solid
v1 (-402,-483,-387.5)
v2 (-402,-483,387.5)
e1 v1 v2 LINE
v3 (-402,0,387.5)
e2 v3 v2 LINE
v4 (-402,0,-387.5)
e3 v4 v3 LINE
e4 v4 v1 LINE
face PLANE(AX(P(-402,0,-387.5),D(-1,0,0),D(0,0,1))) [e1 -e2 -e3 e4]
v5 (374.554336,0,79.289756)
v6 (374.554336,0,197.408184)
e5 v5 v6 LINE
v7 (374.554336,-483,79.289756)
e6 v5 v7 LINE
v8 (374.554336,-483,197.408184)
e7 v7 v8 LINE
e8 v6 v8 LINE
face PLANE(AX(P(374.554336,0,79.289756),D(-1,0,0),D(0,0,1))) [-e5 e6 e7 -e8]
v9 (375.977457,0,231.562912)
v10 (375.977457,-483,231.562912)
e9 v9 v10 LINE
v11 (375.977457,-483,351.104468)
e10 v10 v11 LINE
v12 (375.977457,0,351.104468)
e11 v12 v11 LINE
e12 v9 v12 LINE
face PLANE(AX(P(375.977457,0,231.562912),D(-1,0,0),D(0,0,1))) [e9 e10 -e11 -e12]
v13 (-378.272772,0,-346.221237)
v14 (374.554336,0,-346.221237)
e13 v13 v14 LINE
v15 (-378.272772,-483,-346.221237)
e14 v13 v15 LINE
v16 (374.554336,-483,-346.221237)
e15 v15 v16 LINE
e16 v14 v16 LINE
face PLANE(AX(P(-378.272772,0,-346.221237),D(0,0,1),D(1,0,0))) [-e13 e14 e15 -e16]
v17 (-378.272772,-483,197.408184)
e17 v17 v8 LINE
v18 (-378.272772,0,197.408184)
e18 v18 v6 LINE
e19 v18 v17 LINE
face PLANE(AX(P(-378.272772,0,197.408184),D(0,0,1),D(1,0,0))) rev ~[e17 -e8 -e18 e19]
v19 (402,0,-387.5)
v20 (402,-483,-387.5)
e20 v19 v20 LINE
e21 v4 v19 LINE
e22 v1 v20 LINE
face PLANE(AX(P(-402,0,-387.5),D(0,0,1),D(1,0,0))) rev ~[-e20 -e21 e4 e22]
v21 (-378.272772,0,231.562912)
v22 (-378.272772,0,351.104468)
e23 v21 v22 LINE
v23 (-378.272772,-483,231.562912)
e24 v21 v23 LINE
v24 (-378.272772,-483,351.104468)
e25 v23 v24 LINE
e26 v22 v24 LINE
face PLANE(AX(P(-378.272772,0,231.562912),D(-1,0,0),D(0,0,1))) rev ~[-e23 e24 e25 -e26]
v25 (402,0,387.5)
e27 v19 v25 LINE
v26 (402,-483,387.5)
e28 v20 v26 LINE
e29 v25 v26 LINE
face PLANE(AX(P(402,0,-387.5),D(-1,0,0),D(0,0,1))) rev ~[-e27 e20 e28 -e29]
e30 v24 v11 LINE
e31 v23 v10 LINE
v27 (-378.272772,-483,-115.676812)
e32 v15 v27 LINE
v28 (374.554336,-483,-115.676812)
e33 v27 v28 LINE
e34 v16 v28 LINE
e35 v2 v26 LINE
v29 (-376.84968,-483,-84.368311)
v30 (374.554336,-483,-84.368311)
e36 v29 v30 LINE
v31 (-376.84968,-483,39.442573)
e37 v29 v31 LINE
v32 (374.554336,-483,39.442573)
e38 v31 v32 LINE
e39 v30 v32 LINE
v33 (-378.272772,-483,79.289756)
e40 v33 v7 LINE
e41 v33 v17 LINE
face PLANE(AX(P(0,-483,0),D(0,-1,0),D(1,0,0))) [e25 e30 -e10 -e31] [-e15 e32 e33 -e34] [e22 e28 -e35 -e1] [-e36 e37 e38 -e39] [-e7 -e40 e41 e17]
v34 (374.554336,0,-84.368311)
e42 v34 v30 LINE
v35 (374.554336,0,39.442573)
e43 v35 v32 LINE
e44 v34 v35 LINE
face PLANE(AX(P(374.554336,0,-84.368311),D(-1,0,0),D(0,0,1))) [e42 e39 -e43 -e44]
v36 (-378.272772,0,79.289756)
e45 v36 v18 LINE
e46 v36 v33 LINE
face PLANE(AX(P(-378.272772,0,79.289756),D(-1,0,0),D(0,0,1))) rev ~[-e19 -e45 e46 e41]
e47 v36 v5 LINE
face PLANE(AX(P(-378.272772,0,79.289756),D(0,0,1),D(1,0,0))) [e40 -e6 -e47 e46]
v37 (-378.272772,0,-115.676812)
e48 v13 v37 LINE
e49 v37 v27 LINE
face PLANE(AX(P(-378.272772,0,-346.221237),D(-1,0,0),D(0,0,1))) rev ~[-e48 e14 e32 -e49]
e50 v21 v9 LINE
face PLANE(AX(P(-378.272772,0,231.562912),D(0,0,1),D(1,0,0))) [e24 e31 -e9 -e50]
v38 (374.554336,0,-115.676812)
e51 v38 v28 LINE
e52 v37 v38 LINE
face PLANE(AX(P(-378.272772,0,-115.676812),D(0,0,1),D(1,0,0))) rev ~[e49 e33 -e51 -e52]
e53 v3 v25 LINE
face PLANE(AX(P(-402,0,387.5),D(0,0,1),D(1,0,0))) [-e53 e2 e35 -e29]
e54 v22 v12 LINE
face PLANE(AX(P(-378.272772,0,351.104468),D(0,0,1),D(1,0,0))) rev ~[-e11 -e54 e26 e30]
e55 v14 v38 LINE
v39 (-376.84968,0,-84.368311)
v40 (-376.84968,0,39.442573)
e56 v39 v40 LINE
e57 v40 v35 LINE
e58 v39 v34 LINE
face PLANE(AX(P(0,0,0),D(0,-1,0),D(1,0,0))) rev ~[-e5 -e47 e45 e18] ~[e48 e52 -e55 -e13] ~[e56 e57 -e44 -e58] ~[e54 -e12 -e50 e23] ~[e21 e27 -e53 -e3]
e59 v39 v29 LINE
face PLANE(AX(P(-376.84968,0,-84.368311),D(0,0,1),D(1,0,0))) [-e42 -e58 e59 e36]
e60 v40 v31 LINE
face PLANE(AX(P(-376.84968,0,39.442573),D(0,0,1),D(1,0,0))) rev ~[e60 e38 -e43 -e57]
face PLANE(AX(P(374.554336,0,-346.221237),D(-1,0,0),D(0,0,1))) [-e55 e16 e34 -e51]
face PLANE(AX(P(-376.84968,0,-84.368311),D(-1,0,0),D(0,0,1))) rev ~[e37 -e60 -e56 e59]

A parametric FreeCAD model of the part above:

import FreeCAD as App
import Part
import Sketcher

V = App.Vector

doc = App.newDocument("Part")
body = doc.addObject("PartDesign::Body", "Body")

sketch1 = body.newObject("Sketcher::SketchObject", "Sketch")
sketch1.AttachmentSupport = (doc.getObject("XZ_Plane"), [""])
sketch1.MapMode = "FlatFace"
sketch1.addGeometry([
    Part.LineSegment(V(-402, 387.5, 0), V(-402, -387.5, 0)),
    Part.LineSegment(V(-402, -387.5, 0), V(402, -387.5, 0)),
    Part.LineSegment(V(402, -387.5, 0), V(402, 387.5, 0)),
    Part.LineSegment(V(402, 387.5, 0), V(-402, 387.5, 0)),
    Part.LineSegment(V(374.554336, -346.221237, 0), V(-378.272772, -346.221237, 0)),
    Part.LineSegment(V(-378.272772, -346.221237, 0), V(-378.272772, -115.676812, 0)),
    Part.LineSegment(V(-378.272772, -115.676812, 0), V(374.554336, -115.676812, 0)),
    Part.LineSegment(V(374.554336, -115.676812, 0), V(374.554336, -346.221237, 0)),
    Part.LineSegment(V(374.554336, -84.368311, 0), V(-376.84968, -84.368311, 0)),
    Part.LineSegment(V(-376.84968, -84.368311, 0), V(-376.84968, 39.442573, 0)),
    Part.LineSegment(V(-376.84968, 39.442573, 0), V(374.554336, 39.442573, 0)),
    Part.LineSegment(V(374.554336, 39.442573, 0), V(374.554336, -84.368311, 0)),
    Part.LineSegment(V(374.554336, 79.289756, 0), V(-378.272772, 79.289756, 0)),
    Part.LineSegment(V(-378.272772, 79.289756, 0), V(-378.272772, 197.408184, 0)),
    Part.LineSegment(V(-378.272772, 197.408184, 0), V(374.554336, 197.408184, 0)),
    Part.LineSegment(V(374.554336, 197.408184, 0), V(374.554336, 79.289756, 0)),
    Part.LineSegment(V(375.977457, 231.562912, 0), V(-378.272772, 231.562912, 0)),
    Part.LineSegment(V(-378.272772, 231.562912, 0), V(-378.272772, 351.104468, 0)),
    Part.LineSegment(V(-378.272772, 351.104468, 0), V(375.977457, 351.104468, 0)),
    Part.LineSegment(V(375.977457, 351.104468, 0), V(375.977457, 231.562912, 0)),
], False)
sketch1.addConstraint([
    Sketcher.Constraint("Coincident", 0, 2, 1, 1),
    Sketcher.Constraint("Coincident", 1, 2, 2, 1),
    Sketcher.Constraint("Coincident", 2, 2, 3, 1),
    Sketcher.Constraint("Coincident", 3, 2, 0, 1),
    Sketcher.Constraint("Coincident", 4, 2, 5, 1),
    Sketcher.Constraint("Coincident", 5, 2, 6, 1),
    Sketcher.Constraint("Coincident", 6, 2, 7, 1),
    Sketcher.Constraint("Coincident", 7, 2, 4, 1),
    Sketcher.Constraint("Coincident", 8, 2, 9, 1),
    Sketcher.Constraint("Coincident", 9, 2, 10, 1),
    Sketcher.Constraint("Coincident", 10, 2, 11, 1),
    Sketcher.Constraint("Coincident", 11, 2, 8, 1),
    Sketcher.Constraint("Coincident", 12, 2, 13, 1),
    Sketcher.Constraint("Coincident", 13, 2, 14, 1),
    Sketcher.Constraint("Coincident", 14, 2, 15, 1),
    Sketcher.Constraint("Coincident", 15, 2, 12, 1),
    Sketcher.Constraint("Coincident", 16, 2, 17, 1),
    Sketcher.Constraint("Coincident", 17, 2, 18, 1),
    Sketcher.Constraint("Coincident", 18, 2, 19, 1),
    Sketcher.Constraint("Coincident", 19, 2, 16, 1),
    Sketcher.Constraint("Vertical", 0),
    Sketcher.Constraint("Horizontal", 1),
    Sketcher.Constraint("Vertical", 2),
    Sketcher.Constraint("Horizontal", 3),
    Sketcher.Constraint("Horizontal", 4),
    Sketcher.Constraint("Vertical", 5),
    Sketcher.Constraint("Horizontal", 6),
    Sketcher.Constraint("Vertical", 7),
    Sketcher.Constraint("Horizontal", 8),
    Sketcher.Constraint("Vertical", 9),
    Sketcher.Constraint("Horizontal", 10),
    Sketcher.Constraint("Vertical", 11),
    Sketcher.Constraint("Horizontal", 12),
    Sketcher.Constraint("Vertical", 13),
    Sketcher.Constraint("Horizontal", 14),
    Sketcher.Constraint("Vertical", 15),
    Sketcher.Constraint("Horizontal", 16),
    Sketcher.Constraint("Vertical", 17),
    Sketcher.Constraint("Horizontal", 18),
    Sketcher.Constraint("Vertical", 19),
    Sketcher.Constraint("Symmetric", 0, 2, 2, 2, -1, 1),
    Sketcher.Constraint("Vertical", 7, 2, 10, 2),
    Sketcher.Constraint("Vertical", 5, 2, 12, 2),
    Sketcher.Constraint("Vertical", 11, 2, 14, 2),
    Sketcher.Constraint("Vertical", 13, 2, 16, 2),
    Sketcher.Constraint("DistanceX", 1, 1, 1, 2, 804.0),
    Sketcher.Constraint("DistanceY", 0, 2, 0, 1, 775.0),
    Sketcher.Constraint("DistanceX", 4, 2, 4, 1, 752.827108),
    Sketcher.Constraint("DistanceX", 16, 2, 16, 1, 754.250229),
    Sketcher.Constraint("DistanceY", 5, 2, 8, 2, 31.308501),
    Sketcher.Constraint("DistanceX", 8, 2, 8, 1, 751.404017),
    Sketcher.Constraint("DistanceY", 5, 1, 5, 2, 230.544425),
    Sketcher.Constraint("DistanceY", 9, 1, 9, 2, 123.810884),
    Sketcher.Constraint("DistanceY", 13, 1, 13, 2, 118.118427),
    Sketcher.Constraint("DistanceY", 17, 1, 17, 2, 119.541556),
    Sketcher.Constraint("DistanceX", 4, 2, -1, 1, 378.272772),
    Sketcher.Constraint("DistanceY", 8, 2, -1, 1, 84.368311),
    Sketcher.Constraint("DistanceY", -1, 1, 17, 2, 351.104468),
    Sketcher.Constraint("DistanceY", 5, 2, 12, 2, 194.966569),
])
pad1 = body.newObject("PartDesign::Pad", "Pad")
pad1.Profile = sketch1
pad1.Length = 483

doc.recompute()
